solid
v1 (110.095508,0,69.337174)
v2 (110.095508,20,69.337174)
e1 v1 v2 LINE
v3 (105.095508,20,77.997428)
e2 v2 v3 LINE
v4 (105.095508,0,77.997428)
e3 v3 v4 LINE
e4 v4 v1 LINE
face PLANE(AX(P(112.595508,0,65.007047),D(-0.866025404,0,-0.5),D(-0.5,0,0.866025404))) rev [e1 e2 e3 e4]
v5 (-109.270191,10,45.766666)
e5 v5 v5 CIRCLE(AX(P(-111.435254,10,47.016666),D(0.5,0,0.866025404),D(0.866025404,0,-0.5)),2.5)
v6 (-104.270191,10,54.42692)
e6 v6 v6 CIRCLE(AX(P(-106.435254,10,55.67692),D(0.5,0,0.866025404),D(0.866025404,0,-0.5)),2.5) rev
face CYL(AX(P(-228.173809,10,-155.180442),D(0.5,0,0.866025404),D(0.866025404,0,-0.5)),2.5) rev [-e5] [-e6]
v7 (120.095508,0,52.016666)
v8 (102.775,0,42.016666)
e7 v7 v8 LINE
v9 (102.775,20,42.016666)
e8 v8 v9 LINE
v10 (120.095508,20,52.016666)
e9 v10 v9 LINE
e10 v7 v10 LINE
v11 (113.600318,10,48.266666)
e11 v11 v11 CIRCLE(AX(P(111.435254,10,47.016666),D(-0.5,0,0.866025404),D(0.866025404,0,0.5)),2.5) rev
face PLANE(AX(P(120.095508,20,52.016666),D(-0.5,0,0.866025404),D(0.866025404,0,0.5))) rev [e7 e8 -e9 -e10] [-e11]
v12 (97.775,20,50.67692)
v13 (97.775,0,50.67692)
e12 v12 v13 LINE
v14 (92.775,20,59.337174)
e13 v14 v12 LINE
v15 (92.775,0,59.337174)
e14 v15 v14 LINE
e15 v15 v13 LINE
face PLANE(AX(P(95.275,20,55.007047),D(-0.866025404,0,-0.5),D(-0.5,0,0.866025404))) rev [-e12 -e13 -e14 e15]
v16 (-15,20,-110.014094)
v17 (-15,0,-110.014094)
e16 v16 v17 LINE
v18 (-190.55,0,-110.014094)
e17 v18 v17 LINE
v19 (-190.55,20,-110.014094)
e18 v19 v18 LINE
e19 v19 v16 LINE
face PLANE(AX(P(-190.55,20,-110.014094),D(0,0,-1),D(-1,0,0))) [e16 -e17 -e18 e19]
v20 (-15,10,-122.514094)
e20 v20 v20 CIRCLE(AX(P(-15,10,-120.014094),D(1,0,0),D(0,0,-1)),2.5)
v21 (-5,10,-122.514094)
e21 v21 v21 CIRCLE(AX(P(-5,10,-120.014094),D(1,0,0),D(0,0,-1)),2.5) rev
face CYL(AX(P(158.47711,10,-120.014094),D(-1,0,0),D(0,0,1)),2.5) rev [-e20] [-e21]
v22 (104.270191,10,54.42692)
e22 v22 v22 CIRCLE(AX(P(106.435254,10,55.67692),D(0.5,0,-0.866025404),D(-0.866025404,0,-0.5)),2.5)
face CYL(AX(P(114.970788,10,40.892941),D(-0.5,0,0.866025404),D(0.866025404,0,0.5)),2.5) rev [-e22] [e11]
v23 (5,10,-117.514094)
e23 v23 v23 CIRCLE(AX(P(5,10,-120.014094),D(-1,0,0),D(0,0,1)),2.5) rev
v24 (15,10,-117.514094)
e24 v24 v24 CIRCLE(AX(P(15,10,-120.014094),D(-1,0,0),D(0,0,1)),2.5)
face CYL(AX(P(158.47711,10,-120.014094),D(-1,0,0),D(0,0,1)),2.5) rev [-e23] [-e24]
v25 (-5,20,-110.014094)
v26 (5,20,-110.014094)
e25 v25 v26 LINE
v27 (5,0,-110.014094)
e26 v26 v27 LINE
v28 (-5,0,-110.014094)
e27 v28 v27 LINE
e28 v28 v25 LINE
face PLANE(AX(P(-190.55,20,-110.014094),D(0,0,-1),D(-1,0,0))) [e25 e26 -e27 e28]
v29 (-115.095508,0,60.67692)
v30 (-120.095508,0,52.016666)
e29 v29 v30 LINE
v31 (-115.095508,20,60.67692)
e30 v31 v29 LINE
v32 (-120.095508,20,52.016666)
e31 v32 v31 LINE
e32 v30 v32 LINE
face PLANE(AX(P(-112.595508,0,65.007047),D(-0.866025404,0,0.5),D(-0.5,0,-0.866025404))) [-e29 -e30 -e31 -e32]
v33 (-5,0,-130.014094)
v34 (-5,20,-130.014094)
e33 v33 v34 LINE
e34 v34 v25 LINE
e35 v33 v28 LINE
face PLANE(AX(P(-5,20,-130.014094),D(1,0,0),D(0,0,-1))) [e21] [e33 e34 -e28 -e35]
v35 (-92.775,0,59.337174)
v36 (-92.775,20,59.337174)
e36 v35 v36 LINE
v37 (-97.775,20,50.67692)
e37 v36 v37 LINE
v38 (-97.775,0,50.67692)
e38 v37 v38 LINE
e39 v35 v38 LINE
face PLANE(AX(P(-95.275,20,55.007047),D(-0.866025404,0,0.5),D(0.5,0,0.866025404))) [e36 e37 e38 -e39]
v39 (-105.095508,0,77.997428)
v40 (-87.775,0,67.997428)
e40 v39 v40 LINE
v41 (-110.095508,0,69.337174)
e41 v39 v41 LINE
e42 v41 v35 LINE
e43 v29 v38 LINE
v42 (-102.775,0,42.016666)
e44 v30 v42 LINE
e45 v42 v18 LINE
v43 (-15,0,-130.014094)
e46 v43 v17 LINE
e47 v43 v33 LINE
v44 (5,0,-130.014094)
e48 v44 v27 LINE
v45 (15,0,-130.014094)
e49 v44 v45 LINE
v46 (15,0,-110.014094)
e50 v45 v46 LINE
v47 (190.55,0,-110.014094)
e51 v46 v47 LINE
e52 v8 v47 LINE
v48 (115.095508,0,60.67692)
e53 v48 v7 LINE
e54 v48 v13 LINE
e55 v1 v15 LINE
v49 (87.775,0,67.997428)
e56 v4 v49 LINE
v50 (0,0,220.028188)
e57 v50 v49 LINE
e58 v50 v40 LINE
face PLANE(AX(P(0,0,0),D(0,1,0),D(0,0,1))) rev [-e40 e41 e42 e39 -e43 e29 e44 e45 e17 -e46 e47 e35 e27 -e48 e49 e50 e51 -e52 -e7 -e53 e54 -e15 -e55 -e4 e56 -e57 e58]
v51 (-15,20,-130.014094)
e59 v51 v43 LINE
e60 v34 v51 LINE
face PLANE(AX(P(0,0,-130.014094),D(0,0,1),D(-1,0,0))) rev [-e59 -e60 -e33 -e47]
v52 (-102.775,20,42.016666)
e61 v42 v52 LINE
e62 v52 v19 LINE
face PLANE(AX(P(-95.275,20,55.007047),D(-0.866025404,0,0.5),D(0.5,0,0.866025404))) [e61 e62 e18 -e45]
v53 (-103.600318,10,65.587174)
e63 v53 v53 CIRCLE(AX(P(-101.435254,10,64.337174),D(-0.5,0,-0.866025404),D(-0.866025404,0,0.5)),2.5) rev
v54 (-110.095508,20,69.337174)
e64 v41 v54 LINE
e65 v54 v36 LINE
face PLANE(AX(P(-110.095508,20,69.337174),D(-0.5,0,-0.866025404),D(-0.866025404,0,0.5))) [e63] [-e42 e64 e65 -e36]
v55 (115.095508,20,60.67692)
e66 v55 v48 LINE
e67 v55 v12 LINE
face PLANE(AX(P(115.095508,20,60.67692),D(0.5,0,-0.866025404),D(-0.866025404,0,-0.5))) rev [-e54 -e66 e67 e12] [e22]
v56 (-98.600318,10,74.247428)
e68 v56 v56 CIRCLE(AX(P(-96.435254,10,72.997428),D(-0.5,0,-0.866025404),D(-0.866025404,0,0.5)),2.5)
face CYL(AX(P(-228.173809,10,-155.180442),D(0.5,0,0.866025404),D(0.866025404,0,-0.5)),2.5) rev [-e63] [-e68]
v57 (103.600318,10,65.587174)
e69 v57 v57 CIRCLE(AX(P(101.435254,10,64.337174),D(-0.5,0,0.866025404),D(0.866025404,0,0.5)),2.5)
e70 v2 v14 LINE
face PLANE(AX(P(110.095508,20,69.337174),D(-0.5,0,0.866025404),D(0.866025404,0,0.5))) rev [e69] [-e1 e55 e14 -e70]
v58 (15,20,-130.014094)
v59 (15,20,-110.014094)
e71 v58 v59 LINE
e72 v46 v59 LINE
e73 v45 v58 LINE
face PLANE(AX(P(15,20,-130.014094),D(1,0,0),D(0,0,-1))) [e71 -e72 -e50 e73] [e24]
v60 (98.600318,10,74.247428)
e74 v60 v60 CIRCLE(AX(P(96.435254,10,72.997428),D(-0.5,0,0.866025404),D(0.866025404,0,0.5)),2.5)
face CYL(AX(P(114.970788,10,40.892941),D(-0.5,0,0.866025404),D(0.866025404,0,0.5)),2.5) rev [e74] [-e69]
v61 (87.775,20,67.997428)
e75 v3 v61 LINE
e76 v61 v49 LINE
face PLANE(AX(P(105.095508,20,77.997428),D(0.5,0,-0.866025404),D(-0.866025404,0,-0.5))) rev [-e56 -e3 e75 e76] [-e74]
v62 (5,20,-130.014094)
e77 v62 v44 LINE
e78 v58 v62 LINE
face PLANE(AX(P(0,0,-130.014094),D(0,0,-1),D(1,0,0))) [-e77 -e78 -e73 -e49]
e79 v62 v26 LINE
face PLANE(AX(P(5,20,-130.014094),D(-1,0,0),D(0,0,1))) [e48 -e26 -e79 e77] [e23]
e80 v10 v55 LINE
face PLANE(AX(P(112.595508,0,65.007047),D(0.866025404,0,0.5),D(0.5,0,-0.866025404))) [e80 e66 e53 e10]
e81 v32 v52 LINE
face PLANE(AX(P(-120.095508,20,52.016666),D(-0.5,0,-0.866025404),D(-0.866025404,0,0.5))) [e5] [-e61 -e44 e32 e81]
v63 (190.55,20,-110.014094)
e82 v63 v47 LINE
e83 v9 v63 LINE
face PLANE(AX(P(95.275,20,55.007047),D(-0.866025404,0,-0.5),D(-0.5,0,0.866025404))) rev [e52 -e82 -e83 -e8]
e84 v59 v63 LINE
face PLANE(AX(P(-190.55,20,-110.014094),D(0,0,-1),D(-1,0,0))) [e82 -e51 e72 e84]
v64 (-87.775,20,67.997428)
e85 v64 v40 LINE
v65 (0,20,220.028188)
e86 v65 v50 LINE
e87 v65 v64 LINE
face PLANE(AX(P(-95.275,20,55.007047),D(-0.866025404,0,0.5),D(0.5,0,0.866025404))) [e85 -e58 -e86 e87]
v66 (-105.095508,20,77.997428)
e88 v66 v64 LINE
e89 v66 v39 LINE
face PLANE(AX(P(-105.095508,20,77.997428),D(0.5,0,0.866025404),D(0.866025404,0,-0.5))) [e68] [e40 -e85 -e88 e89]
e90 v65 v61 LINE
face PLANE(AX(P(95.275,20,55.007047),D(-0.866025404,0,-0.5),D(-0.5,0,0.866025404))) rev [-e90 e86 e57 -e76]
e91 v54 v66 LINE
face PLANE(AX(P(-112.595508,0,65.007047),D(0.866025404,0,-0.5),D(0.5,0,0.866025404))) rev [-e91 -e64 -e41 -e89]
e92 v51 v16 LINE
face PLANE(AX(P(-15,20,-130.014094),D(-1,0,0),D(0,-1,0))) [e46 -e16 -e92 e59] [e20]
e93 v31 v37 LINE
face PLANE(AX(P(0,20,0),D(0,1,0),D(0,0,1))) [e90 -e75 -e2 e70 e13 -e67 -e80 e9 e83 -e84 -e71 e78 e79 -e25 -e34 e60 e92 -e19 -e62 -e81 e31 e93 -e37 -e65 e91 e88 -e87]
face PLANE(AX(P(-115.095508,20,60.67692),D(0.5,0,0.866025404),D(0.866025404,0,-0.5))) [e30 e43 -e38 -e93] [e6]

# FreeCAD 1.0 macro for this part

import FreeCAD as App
import Part
import Sketcher

V = App.Vector
Q = App.Units.Quantity


def add_polygon(sketch, points):
    """Adds a closed chain of lines whose ends are joined by coincident constraints."""
    first, n = sketch.GeometryCount, len(points)
    for a, b in zip(points, points[1:] + points[:1]):
        sketch.addGeometry(Part.LineSegment(App.Vector(*a, 0), App.Vector(*b, 0)), False)
    for i in range(n):
        sketch.addConstraint(Sketcher.Constraint("Coincident", first + i, 2, first + (i + 1) % n, 1))

doc = App.newDocument("Part")
body = doc.addObject("PartDesign::Body", "Body")

# Sketch on XZ plane
sketch1 = doc.addObject("Sketcher::SketchObject", "Sketch")
body.addObject(sketch1)
sketch1.AttachmentSupport = (doc.XZ_Plane, [""])
sketch1.MapMode = "FlatFace"
add_polygon(sketch1, [(190.55, -110.014094), (-190.55, -110.014094), (0, 220.028188)])  # lines 0-2
sketch1.addConstraint([
    Sketcher.Constraint("Horizontal", 0),
    Sketcher.Constraint("PointOnObject", 1, 2, -2),
    Sketcher.Constraint("Equal", 1, 2),
    Sketcher.Constraint("Angle", 1, Q("60 deg")),
    Sketcher.Constraint("DistanceX", 0, 2, 0, 1, 381.1),
    Sketcher.Constraint("DistanceY", 0, 2, -1, 1, 110.014094),
])
pad1 = doc.addObject("PartDesign::Pad", "Pad")
body.addObject(pad1)
pad1.Profile = sketch1
pad1.Length = 20
pad1.Reversed = True

# Sketch on an angled plane
sketch2 = doc.addObject("Sketcher::SketchObject", "Sketch001")
body.addObject(sketch2)
sketch2.Placement = App.Placement(V(95.275, 0, 55.007047), App.Rotation(V(0.5, 0, -0.866025404), V(0, 1, 0), V(0.866025404, 0, 0.5), "ZXY"))
add_polygon(sketch2, [(-15, 20), (-15, 0), (-5, 0), (-5, 20)])  # lines 0-3
add_polygon(sketch2, [(5, 20), (5, 0), (15, 0), (15, 20)])  # lines 4-7
sketch2.addConstraint([
    Sketcher.Constraint("Vertical", 0),
    Sketcher.Constraint("Horizontal", 1),
    Sketcher.Constraint("Vertical", 2),
    Sketcher.Constraint("Horizontal", 3),
    Sketcher.Constraint("Vertical", 4),
    Sketcher.Constraint("Horizontal", 5),
    Sketcher.Constraint("Vertical", 6),
    Sketcher.Constraint("Horizontal", 7),
    Sketcher.Constraint("Symmetric", 1, 2, 4, 2, -1, 1),
    Sketcher.Constraint("Symmetric", 0, 2, 5, 2, -2),
    Sketcher.Constraint("Horizontal", 3, 2, 6, 2),
    Sketcher.Constraint("DistanceX", 1, 1, 1, 2, 10.0),
    Sketcher.Constraint("DistanceY", 0, 2, 0, 1, 20.0),
    Sketcher.Constraint("DistanceX", 0, 2, -1, 1, 15.0),
])
pad2 = doc.addObject("PartDesign::Pad", "Pad001")
body.addObject(pad2)
pad2.Profile = sketch2
pad2.Length = 20

# Sketch on an angled plane
sketch3 = doc.addObject("Sketcher::SketchObject", "Sketch002")
body.addObject(sketch3)
sketch3.Placement = App.Placement(V(-7.5, 0, 12.990381), App.Rotation(V(0.866025404, 0, 0.5), V(0, 1, 0), V(-0.5, 0, 0.866025404), "ZXY"))
sketch3.addGeometry(Part.Circle(V(120.014094, 10, 0), V(0, 0, 1), 2.5), False)
sketch3.addConstraint([
    Sketcher.Constraint("Diameter", 0, 5.0),
    Sketcher.Constraint("DistanceY", -1, 1, 0, 3, 10.0),
    Sketcher.Constraint("DistanceX", -1, 1, 0, 3, 120.014094),
])
pocket1 = doc.addObject("PartDesign::Pocket", "Pocket")
body.addObject(pocket1)
pocket1.Profile = sketch3
pocket1.Length = 30
doc.recompute()

datumplane = doc.addObject("PartDesign::Plane", "DatumPlane")
body.addObject(datumplane)
datumplane.Placement = App.Placement(V(0, 0, 0), App.Rotation(V(-0.866025404, 0, 0.5), V(0, -1, 0), V(0.5, 0, 0.866025404), "ZXY"))
mirrored = doc.addObject("PartDesign::Mirrored", "Mirrored")
body.addObject(mirrored)
mirrored.Originals = [pad2, pocket1]
mirrored.MirrorPlane = (datumplane, [""])
body.Tip = mirrored
doc.recompute()

mirrored2 = doc.addObject("PartDesign::Mirrored", "Mirrored001")
body.addObject(mirrored2)
mirrored2.Originals = [pad2, pocket1]
mirrored2.MirrorPlane = (doc.YZ_Plane, [""])
body.Tip = mirrored2

doc.recompute()
